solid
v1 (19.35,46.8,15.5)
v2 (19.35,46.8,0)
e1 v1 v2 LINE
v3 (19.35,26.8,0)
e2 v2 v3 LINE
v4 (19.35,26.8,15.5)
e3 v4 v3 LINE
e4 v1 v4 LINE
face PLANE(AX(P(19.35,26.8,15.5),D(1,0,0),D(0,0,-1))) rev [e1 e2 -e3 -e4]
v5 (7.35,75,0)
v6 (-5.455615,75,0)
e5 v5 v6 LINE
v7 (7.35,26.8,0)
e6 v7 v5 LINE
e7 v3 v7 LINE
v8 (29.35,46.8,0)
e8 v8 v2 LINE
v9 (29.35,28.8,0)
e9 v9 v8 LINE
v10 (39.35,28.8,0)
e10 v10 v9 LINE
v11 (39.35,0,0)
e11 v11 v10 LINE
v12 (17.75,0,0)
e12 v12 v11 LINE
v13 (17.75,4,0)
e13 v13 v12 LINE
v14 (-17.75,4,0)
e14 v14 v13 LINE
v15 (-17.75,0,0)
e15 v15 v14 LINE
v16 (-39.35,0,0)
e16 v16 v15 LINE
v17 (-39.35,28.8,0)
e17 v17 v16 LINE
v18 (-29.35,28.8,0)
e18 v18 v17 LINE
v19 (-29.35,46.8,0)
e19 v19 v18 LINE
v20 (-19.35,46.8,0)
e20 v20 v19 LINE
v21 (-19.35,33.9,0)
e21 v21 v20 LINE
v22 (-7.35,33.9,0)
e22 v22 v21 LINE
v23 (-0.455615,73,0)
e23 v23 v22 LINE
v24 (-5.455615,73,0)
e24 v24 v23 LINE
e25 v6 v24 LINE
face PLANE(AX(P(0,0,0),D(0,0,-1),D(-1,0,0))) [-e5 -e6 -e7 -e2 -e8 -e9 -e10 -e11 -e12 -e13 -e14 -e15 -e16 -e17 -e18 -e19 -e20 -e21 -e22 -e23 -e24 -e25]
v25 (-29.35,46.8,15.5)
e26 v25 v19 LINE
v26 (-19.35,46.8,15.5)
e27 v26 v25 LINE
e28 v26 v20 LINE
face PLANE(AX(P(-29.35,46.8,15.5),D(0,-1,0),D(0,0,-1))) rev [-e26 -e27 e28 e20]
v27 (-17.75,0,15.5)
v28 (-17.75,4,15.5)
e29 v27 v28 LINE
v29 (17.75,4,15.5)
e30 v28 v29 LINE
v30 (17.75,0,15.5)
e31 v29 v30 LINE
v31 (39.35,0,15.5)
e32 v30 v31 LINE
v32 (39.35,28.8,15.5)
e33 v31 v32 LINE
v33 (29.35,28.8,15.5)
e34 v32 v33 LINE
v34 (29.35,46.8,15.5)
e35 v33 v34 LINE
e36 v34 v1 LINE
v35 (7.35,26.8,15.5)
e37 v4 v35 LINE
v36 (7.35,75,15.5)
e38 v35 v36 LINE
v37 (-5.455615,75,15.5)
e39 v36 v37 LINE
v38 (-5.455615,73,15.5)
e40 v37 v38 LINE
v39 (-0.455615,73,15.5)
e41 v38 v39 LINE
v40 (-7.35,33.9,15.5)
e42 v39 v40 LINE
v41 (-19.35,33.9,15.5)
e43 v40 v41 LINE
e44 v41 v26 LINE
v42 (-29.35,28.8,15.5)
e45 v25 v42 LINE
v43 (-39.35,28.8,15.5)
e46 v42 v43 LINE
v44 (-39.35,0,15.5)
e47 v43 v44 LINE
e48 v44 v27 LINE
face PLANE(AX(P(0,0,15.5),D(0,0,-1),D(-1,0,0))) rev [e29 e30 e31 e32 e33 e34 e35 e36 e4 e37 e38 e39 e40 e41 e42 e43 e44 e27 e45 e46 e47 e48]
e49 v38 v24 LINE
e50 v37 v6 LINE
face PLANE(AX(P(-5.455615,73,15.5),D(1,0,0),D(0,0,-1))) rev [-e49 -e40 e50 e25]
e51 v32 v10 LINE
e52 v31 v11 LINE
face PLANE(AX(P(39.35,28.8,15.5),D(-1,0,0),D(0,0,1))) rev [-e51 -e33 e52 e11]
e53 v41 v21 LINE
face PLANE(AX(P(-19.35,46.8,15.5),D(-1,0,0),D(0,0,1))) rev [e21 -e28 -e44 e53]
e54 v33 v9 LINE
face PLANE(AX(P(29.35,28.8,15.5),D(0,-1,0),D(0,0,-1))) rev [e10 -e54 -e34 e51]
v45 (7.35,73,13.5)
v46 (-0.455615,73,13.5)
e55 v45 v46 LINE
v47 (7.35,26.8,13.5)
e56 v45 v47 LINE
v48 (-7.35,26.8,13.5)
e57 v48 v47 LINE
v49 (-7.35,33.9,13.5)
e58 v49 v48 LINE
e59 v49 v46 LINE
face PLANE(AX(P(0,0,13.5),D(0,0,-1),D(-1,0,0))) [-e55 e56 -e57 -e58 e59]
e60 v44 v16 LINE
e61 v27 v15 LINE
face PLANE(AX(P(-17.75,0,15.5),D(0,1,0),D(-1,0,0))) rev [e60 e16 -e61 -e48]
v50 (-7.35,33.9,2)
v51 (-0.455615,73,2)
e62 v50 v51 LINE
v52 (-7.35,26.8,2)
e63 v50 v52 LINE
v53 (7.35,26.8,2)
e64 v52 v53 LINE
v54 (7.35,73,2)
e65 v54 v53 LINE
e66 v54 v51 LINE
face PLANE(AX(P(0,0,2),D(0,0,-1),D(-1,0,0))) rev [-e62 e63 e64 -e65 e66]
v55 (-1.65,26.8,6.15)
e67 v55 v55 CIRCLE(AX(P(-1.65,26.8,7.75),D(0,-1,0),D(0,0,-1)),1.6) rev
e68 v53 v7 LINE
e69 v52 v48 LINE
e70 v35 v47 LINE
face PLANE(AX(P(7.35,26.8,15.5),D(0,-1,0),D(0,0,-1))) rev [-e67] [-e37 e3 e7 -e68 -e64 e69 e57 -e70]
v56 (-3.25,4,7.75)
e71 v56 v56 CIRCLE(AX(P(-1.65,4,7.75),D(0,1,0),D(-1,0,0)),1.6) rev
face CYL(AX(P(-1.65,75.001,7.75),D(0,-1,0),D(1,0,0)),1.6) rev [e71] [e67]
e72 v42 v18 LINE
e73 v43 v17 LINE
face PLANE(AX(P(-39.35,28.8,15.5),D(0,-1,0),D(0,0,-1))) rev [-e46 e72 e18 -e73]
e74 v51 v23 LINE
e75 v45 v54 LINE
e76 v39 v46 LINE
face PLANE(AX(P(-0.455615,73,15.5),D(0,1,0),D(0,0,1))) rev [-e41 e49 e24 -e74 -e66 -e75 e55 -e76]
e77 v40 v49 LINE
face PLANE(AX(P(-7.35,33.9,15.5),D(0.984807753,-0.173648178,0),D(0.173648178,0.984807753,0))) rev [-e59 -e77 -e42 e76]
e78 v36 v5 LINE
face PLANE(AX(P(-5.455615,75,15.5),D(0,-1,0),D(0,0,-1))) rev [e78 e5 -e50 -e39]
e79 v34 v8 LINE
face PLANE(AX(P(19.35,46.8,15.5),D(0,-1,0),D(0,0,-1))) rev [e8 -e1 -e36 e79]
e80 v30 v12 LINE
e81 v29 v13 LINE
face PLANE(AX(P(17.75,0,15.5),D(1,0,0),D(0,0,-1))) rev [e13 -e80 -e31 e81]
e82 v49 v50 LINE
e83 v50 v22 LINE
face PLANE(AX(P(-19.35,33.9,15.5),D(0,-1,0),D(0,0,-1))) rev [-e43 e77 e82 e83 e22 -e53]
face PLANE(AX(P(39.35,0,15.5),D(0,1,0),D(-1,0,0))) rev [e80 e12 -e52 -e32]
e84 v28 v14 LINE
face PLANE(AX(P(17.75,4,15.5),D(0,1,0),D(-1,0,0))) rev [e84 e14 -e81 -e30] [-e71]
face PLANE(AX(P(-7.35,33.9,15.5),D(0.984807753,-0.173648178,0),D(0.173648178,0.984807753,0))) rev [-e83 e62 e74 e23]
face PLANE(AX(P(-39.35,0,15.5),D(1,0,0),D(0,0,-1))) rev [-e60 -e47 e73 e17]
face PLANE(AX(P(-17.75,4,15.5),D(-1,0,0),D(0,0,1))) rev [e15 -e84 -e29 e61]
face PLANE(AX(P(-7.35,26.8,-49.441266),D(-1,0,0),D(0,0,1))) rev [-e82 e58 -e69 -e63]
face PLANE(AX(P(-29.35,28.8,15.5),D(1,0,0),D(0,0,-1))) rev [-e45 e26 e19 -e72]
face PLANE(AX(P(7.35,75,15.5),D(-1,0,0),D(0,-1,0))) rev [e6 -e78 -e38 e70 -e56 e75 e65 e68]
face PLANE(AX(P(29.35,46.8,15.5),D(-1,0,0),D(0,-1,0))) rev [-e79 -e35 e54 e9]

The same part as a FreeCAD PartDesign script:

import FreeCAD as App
import Part
import Sketcher

V = App.Vector
Q = App.Units.Quantity

doc = App.newDocument("Part")
body = doc.addObject("PartDesign::Body", "Body")

# Sketch on XY plane
sketch1 = doc.addObject("Sketcher::SketchObject", "Sketch")
body.addObject(sketch1)
sketch1.AttachmentSupport = (doc.XY_Plane, [""])
sketch1.MapMode = "FlatFace"
sketch1.addGeometry(Part.LineSegment(V(-39.35, 28.8, 0), V(-39.35, 0, 0)), False)
sketch1.addGeometry(Part.LineSegment(V(-39.35, 0, 0), V(-17.75, 0, 0)), False)
sketch1.addGeometry(Part.LineSegment(V(-17.75, 0, 0), V(-17.75, 4, 0)), False)
sketch1.addGeometry(Part.LineSegment(V(-17.75, 4, 0), V(17.75, 4, 0)), False)
sketch1.addGeometry(Part.LineSegment(V(17.75, 4, 0), V(17.75, 0, 0)), False)
sketch1.addGeometry(Part.LineSegment(V(17.75, 0, 0), V(39.35, 0, 0)), False)
sketch1.addGeometry(Part.LineSegment(V(39.35, 0, 0), V(39.35, 28.8, 0)), False)
sketch1.addGeometry(Part.LineSegment(V(39.35, 28.8, 0), V(29.35, 28.8, 0)), False)
sketch1.addGeometry(Part.LineSegment(V(29.35, 28.8, 0), V(29.35, 46.8, 0)), False)
sketch1.addGeometry(Part.LineSegment(V(29.35, 46.8, 0), V(19.35, 46.8, 0)), False)
sketch1.addGeometry(Part.LineSegment(V(19.35, 46.8, 0), V(19.35, 26.8, 0)), False)
sketch1.addGeometry(Part.LineSegment(V(19.35, 26.8, 0), V(7.35, 26.8, 0)), False)
sketch1.addGeometry(Part.LineSegment(V(7.35, 26.8, 0), V(7.35, 75, 0)), False)
sketch1.addGeometry(Part.LineSegment(V(7.35, 75, 0), V(-5.455615, 75, 0)), False)
sketch1.addGeometry(Part.LineSegment(V(-5.455615, 75, 0), V(-5.455615, 73, 0)), False)
sketch1.addGeometry(Part.LineSegment(V(-5.455615, 73, 0), V(-0.455615, 73, 0)), False)
sketch1.addGeometry(Part.LineSegment(V(-0.455615, 73, 0), V(-7.35, 33.9, 0)), False)
sketch1.addGeometry(Part.LineSegment(V(-7.35, 33.9, 0), V(-19.35, 33.9, 0)), False)
sketch1.addGeometry(Part.LineSegment(V(-19.35, 33.9, 0), V(-19.35, 46.8, 0)), False)
sketch1.addGeometry(Part.LineSegment(V(-19.35, 46.8, 0), V(-29.35, 46.8, 0)), False)
sketch1.addGeometry(Part.LineSegment(V(-29.35, 46.8, 0), V(-29.35, 28.8, 0)), False)
sketch1.addGeometry(Part.LineSegment(V(-29.35, 28.8, 0), V(-39.35, 28.8, 0)), False)
sketch1.addConstraint(Sketcher.Constraint("Coincident", 0, 2, 1, 1))
sketch1.addConstraint(Sketcher.Constraint("Coincident", 1, 2, 2, 1))
sketch1.addConstraint(Sketcher.Constraint("Coincident", 2, 2, 3, 1))
sketch1.addConstraint(Sketcher.Constraint("Coincident", 3, 2, 4, 1))
sketch1.addConstraint(Sketcher.Constraint("Coincident", 4, 2, 5, 1))
sketch1.addConstraint(Sketcher.Constraint("Coincident", 5, 2, 6, 1))
sketch1.addConstraint(Sketcher.Constraint("Coincident", 6, 2, 7, 1))
sketch1.addConstraint(Sketcher.Constraint("Coincident", 7, 2, 8, 1))
sketch1.addConstraint(Sketcher.Constraint("Coincident", 8, 2, 9, 1))
sketch1.addConstraint(Sketcher.Constraint("Coincident", 9, 2, 10, 1))
sketch1.addConstraint(Sketcher.Constraint("Coincident", 10, 2, 11, 1))
sketch1.addConstraint(Sketcher.Constraint("Coincident", 11, 2, 12, 1))
sketch1.addConstraint(Sketcher.Constraint("Coincident", 12, 2, 13, 1))
sketch1.addConstraint(Sketcher.Constraint("Coincident", 13, 2, 14, 1))
sketch1.addConstraint(Sketcher.Constraint("Coincident", 14, 2, 15, 1))
sketch1.addConstraint(Sketcher.Constraint("Coincident", 15, 2, 16, 1))
sketch1.addConstraint(Sketcher.Constraint("Coincident", 16, 2, 17, 1))
sketch1.addConstraint(Sketcher.Constraint("Coincident", 17, 2, 18, 1))
sketch1.addConstraint(Sketcher.Constraint("Coincident", 18, 2, 19, 1))
sketch1.addConstraint(Sketcher.Constraint("Coincident", 19, 2, 20, 1))
sketch1.addConstraint(Sketcher.Constraint("Coincident", 20, 2, 21, 1))
sketch1.addConstraint(Sketcher.Constraint("Coincident", 21, 2, 0, 1))
sketch1.addConstraint(Sketcher.Constraint("Vertical", 0))
sketch1.addConstraint(Sketcher.Constraint("Horizontal", 1))
sketch1.addConstraint(Sketcher.Constraint("Vertical", 2))
sketch1.addConstraint(Sketcher.Constraint("Horizontal", 3))
sketch1.addConstraint(Sketcher.Constraint("Vertical", 4))
sketch1.addConstraint(Sketcher.Constraint("Horizontal", 5))
sketch1.addConstraint(Sketcher.Constraint("Vertical", 6))
sketch1.addConstraint(Sketcher.Constraint("Horizontal", 7))
sketch1.addConstraint(Sketcher.Constraint("Vertical", 8))
sketch1.addConstraint(Sketcher.Constraint("Horizontal", 9))
sketch1.addConstraint(Sketcher.Constraint("Vertical", 10))
sketch1.addConstraint(Sketcher.Constraint("Horizontal", 11))
sketch1.addConstraint(Sketcher.Constraint("Vertical", 12))
sketch1.addConstraint(Sketcher.Constraint("Horizontal", 13))
sketch1.addConstraint(Sketcher.Constraint("Vertical", 14))
sketch1.addConstraint(Sketcher.Constraint("Horizontal", 15))
sketch1.addConstraint(Sketcher.Constraint("Horizontal", 17))
sketch1.addConstraint(Sketcher.Constraint("Vertical", 18))
sketch1.addConstraint(Sketcher.Constraint("Horizontal", 19))
sketch1.addConstraint(Sketcher.Constraint("Vertical", 20))
sketch1.addConstraint(Sketcher.Constraint("Horizontal", 21))
sketch1.addConstraint(Sketcher.Constraint("Symmetric", 1, 2, 4, 2, -1, 1))
sketch1.addConstraint(Sketcher.Constraint("Symmetric", 0, 2, 5, 2, -2))
sketch1.addConstraint(Sketcher.Constraint("Symmetric", 9, 2, 18, 2, -2))
sketch1.addConstraint(Sketcher.Constraint("Symmetric", 7, 2, 20, 2, -2))
sketch1.addConstraint(Sketcher.Constraint("Equal", 7, 9))
sketch1.addConstraint(Sketcher.Constraint("Equal", 11, 17))
sketch1.addConstraint(Sketcher.Constraint("DistanceX", 7, 2, 7, 1, 10.0))
sketch1.addConstraint(Sketcher.Constraint("DistanceX", 11, 2, 11, 1, 12.0))
sketch1.addConstraint(Sketcher.Constraint("DistanceX", 15, 1, 15, 2, 5.0))
sketch1.addConstraint(Sketcher.Constraint("DistanceY", 2, 1, 2, 2, 4.0))
sketch1.addConstraint(Sketcher.Constraint("DistanceY", 8, 1, 8, 2, 18.0))
sketch1.addConstraint(Sketcher.Constraint("DistanceY", 10, 2, 10, 1, 20.0))
sketch1.addConstraint(Sketcher.Constraint("DistanceY", 14, 2, 14, 1, 2.0))
sketch1.addConstraint(Sketcher.Constraint("Angle", 16, Q("-100 deg")))
sketch1.addConstraint(Sketcher.Constraint("DistanceX", 1, 1, 1, 2, 21.6))
sketch1.addConstraint(Sketcher.Constraint("DistanceX", 3, 1, 3, 2, 35.5))
sketch1.addConstraint(Sketcher.Constraint("DistanceY", 0, 2, 0, 1, 28.8))
sketch1.addConstraint(Sketcher.Constraint("DistanceY", 12, 1, 12, 2, 48.2))
sketch1.addConstraint(Sketcher.Constraint("DistanceY", 18, 1, 18, 2, 12.9))
pad1 = doc.addObject("PartDesign::Pad", "Pad")
body.addObject(pad1)
pad1.Profile = sketch1
pad1.Length = 15.5

# Sketch on XY plane
sketch2 = doc.addObject("Sketcher::SketchObject", "Sketch001")
body.addObject(sketch2)
sketch2.AttachmentSupport = (doc.XY_Plane, [""])
sketch2.MapMode = "FlatFace"
sketch2.AttachmentOffset = App.Placement(V(0, 0, 13.5), App.Rotation())
sketch2.addGeometry(Part.LineSegment(V(-7.35, 73, 0), V(-7.35, 26.8, 0)), False)
sketch2.addGeometry(Part.LineSegment(V(-7.35, 26.8, 0), V(10.256783, 26.8, 0)), False)
sketch2.addGeometry(Part.LineSegment(V(10.256783, 26.8, 0), V(10.256783, 73, 0)), False)
sketch2.addGeometry(Part.LineSegment(V(10.256783, 73, 0), V(-7.35, 73, 0)), False)
sketch2.addConstraint(Sketcher.Constraint("Coincident", 0, 2, 1, 1))
sketch2.addConstraint(Sketcher.Constraint("Coincident", 1, 2, 2, 1))
sketch2.addConstraint(Sketcher.Constraint("Coincident", 2, 2, 3, 1))
sketch2.addConstraint(Sketcher.Constraint("Coincident", 3, 2, 0, 1))
sketch2.addConstraint(Sketcher.Constraint("Vertical", 0))
sketch2.addConstraint(Sketcher.Constraint("Horizontal", 1))
sketch2.addConstraint(Sketcher.Constraint("Vertical", 2))
sketch2.addConstraint(Sketcher.Constraint("Horizontal", 3))
sketch2.addConstraint(Sketcher.Constraint("DistanceY", 0, 2, 0, 1, 46.2))
sketch2.addConstraint(Sketcher.Constraint("DistanceY", -1, 1, 2, 2, 73.0))
sketch2.addConstraint(Sketcher.Constraint("DistanceX", 0, 2, -1, 1, 7.35))
sketch2.addConstraint(Sketcher.Constraint("DistanceX", 1, 1, 1, 2, 17.606783))
pocket1 = doc.addObject("PartDesign::Pocket", "Pocket")
body.addObject(pocket1)
pocket1.Profile = sketch2
pocket1.Length = 11.5

# Sketch on XZ plane
sketch3 = doc.addObject("Sketcher::SketchObject", "Sketch002")
body.addObject(sketch3)
sketch3.AttachmentSupport = (doc.XZ_Plane, [""])
sketch3.MapMode = "FlatFace"
sketch3.addGeometry(Part.Circle(V(-1.65, 7.75, 0), V(0, 0, 1), 1.6), False)
sketch3.addConstraint(Sketcher.Constraint("Diameter", 0, 3.2))
sketch3.addConstraint(Sketcher.Constraint("DistanceX", 0, 3, -1, 1, 1.65))
sketch3.addConstraint(Sketcher.Constraint("DistanceY", -1, 1, 0, 3, 7.75))
pocket2 = doc.addObject("PartDesign::Pocket", "Pocket001")
body.addObject(pocket2)
pocket2.Profile = sketch3
pocket2.Length = 26.8

doc.recompute()
